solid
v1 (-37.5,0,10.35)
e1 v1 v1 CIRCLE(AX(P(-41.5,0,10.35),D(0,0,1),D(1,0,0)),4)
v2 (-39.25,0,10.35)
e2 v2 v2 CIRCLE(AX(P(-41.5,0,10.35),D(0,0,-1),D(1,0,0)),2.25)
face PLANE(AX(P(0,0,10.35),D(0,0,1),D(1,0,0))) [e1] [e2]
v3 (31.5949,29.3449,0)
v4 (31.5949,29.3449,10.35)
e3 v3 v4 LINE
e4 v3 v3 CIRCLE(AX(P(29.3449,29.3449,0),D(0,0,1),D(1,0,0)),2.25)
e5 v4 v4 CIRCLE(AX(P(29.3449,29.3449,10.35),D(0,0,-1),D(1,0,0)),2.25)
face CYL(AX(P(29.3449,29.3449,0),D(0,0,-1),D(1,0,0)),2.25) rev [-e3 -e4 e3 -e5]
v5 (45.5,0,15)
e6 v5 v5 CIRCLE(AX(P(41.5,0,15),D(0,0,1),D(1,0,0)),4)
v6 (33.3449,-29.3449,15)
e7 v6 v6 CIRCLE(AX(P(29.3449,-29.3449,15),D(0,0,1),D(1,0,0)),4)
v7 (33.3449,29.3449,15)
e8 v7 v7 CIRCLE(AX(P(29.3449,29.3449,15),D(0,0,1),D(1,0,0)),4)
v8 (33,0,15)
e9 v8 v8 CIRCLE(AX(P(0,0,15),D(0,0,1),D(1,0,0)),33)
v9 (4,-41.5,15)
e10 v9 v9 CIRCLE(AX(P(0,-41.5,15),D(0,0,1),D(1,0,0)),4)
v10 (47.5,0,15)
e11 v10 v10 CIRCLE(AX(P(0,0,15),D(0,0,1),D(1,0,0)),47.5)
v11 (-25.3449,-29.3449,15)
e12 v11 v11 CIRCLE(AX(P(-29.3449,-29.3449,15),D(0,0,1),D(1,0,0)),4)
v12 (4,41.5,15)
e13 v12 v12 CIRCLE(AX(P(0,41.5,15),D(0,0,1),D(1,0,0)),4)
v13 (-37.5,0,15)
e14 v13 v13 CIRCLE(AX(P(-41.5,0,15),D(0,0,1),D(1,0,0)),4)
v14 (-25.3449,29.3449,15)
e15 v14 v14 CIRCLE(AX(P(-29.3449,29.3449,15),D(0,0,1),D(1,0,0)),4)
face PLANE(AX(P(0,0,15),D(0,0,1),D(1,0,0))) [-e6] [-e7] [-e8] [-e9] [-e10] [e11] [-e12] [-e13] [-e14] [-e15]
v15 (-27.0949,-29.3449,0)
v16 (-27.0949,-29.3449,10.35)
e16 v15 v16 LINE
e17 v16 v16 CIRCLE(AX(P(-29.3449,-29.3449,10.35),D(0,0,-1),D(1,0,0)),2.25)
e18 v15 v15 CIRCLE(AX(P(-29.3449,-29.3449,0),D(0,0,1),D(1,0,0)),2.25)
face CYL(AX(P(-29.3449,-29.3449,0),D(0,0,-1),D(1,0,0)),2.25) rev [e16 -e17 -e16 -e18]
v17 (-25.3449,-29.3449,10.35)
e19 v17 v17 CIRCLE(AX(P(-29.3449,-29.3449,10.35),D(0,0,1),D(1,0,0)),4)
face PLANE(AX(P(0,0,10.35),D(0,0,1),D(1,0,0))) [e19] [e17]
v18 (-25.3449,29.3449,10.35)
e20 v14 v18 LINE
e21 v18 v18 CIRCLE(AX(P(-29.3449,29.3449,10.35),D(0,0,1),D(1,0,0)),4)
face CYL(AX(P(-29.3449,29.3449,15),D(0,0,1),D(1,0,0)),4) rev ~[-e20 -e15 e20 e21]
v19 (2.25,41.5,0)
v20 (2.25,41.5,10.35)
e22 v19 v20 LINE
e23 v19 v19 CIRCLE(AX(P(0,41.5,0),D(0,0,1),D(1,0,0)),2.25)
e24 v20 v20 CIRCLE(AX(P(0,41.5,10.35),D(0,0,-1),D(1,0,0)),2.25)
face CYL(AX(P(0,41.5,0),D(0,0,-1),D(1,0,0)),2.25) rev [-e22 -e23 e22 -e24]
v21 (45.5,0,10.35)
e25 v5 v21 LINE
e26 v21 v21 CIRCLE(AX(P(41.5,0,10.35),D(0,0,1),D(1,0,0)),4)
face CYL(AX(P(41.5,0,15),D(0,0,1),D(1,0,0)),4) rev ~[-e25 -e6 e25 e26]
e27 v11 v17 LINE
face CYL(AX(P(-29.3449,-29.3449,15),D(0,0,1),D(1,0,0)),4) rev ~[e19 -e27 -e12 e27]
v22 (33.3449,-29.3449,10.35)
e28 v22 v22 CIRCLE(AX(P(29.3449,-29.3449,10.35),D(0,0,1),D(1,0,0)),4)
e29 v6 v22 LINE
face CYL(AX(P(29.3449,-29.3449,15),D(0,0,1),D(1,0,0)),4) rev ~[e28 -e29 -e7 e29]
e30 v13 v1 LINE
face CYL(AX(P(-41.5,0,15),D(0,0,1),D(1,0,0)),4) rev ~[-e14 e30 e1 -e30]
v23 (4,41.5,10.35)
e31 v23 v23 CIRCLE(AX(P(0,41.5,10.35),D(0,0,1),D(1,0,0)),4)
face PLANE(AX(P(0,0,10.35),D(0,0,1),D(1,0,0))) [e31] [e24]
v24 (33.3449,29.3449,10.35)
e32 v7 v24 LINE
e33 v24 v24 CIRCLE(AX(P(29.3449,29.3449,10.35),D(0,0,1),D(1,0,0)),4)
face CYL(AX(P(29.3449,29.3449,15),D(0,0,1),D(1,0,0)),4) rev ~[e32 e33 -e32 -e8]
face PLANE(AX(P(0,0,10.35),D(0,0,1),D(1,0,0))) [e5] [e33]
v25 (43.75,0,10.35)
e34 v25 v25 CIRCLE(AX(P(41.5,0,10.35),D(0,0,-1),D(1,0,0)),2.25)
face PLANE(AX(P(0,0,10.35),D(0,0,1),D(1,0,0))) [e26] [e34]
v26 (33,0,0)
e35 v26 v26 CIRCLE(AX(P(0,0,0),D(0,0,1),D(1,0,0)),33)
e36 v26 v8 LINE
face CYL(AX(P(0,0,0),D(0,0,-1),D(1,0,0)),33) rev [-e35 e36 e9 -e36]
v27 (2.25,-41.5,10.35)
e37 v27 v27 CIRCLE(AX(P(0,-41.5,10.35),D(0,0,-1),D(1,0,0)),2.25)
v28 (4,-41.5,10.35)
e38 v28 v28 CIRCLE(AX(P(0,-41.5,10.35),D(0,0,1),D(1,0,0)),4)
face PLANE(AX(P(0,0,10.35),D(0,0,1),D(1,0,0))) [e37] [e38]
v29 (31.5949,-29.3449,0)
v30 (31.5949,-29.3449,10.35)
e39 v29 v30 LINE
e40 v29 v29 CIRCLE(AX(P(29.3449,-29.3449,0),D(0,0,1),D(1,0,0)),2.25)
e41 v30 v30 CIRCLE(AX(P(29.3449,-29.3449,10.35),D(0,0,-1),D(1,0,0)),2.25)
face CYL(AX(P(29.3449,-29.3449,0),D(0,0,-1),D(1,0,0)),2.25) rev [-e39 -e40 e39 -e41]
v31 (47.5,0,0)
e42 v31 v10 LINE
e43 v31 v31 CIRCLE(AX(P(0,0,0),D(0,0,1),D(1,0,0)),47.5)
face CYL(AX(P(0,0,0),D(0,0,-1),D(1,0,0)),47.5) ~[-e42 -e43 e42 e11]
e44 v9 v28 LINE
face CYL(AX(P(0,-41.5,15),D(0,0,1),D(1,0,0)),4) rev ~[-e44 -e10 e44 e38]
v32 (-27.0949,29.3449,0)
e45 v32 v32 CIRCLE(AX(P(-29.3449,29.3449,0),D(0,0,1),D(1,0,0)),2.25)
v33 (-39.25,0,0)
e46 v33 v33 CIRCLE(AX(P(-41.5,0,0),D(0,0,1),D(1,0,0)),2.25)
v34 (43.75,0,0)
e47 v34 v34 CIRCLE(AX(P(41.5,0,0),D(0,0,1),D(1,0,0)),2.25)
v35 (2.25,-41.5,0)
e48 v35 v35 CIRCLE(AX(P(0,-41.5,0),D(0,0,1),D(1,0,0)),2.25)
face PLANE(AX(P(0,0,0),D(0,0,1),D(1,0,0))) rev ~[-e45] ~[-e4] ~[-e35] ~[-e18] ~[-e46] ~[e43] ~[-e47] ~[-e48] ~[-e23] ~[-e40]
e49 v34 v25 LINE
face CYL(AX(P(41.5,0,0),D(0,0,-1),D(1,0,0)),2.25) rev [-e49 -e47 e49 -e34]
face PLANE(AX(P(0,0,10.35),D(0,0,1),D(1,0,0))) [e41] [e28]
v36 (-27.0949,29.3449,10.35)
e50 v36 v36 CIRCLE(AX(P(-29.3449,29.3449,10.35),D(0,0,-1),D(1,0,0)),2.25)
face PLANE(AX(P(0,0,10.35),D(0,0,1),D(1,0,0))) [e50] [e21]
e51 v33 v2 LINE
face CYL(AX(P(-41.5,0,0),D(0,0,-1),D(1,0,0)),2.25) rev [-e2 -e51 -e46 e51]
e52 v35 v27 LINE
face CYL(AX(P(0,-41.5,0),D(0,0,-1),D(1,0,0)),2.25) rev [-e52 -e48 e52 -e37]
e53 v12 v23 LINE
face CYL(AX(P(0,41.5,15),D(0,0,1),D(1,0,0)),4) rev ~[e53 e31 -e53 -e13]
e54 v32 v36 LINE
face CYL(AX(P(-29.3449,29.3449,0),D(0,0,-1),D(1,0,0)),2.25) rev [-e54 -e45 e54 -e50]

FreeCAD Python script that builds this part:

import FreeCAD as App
import Part
import Sketcher
from FreeCAD import Vector

doc = App.newDocument("Part")
body = doc.addObject("PartDesign::Body", "Body")

# Sketch on XY plane
sketch1 = body.newObject("Sketcher::SketchObject", "Sketch")
sketch1.AttachmentSupport = (doc.getObject("XY_Plane"), [""])
sketch1.MapMode = "FlatFace"
sketch1.addGeometry(Part.Circle(Vector(0, 0, 0), Vector(0, 0, 1), 47.5), False)
sketch1.addGeometry(Part.Circle(Vector(-29.3449, -29.3449, 0), Vector(0, 0, 1), 2.25), False)
sketch1.addGeometry(Part.Circle(Vector(0, -41.5, 0), Vector(0, 0, 1), 2.25), False)
sketch1.addGeometry(Part.Circle(Vector(29.3449, -29.3449, 0), Vector(0, 0, 1), 2.25), False)
sketch1.addGeometry(Part.Circle(Vector(-41.5, 0, 0), Vector(0, 0, 1), 2.25), False)
sketch1.addGeometry(Part.Circle(Vector(-29.3449, 29.3449, 0), Vector(0, 0, 1), 2.25), False)
sketch1.addGeometry(Part.Circle(Vector(0, 0, 0), Vector(0, 0, 1), 33), False)
sketch1.addGeometry(Part.Circle(Vector(41.5, 0, 0), Vector(0, 0, 1), 2.25), False)
sketch1.addGeometry(Part.Circle(Vector(0, 41.5, 0), Vector(0, 0, 1), 2.25), False)
sketch1.addGeometry(Part.Circle(Vector(29.3449, 29.3449, 0), Vector(0, 0, 1), 2.25), False)
sketch1.addConstraint(Sketcher.Constraint("Coincident", 0, 3, -1, 1))
sketch1.addConstraint(Sketcher.Constraint("Coincident", 6, 3, -1, 1))
sketch1.addConstraint(Sketcher.Constraint("Equal", 1, 2))
sketch1.addConstraint(Sketcher.Constraint("Equal", 2, 3))
sketch1.addConstraint(Sketcher.Constraint("Equal", 3, 4))
sketch1.addConstraint(Sketcher.Constraint("Equal", 4, 5))
sketch1.addConstraint(Sketcher.Constraint("Equal", 5, 7))
sketch1.addConstraint(Sketcher.Constraint("Equal", 7, 8))
sketch1.addConstraint(Sketcher.Constraint("Equal", 8, 9))
sketch1.addConstraint(Sketcher.Constraint("Symmetric", 3, 3, 5, 3, -1, 1))
sketch1.addConstraint(Sketcher.Constraint("Symmetric", 4, 3, 7, 3, -1, 1))
sketch1.addConstraint(Sketcher.Constraint("Symmetric", 2, 3, 8, 3, -1, 1))
sketch1.addConstraint(Sketcher.Constraint("Symmetric", 1, 3, 9, 3, -1, 1))
sketch1.addConstraint(Sketcher.Constraint("Symmetric", 1, 3, 3, 3, -2))
sketch1.addConstraint(Sketcher.Constraint("PointOnObject", 2, 3, -2))
sketch1.addConstraint(Sketcher.Constraint("PointOnObject", 4, 3, -1))
sketch1.addConstraint(Sketcher.Constraint("Diameter", 0, 95.0))
sketch1.addConstraint(Sketcher.Constraint("Diameter", 6, 66.0))
sketch1.addConstraint(Sketcher.Constraint("Diameter", 1, 4.5))
sketch1.addConstraint(Sketcher.Constraint("DistanceY", 2, 3, -1, 1, 41.5))
sketch1.addConstraint(Sketcher.Constraint("DistanceX", 4, 3, -1, 1, 41.5))
sketch1.addConstraint(Sketcher.Constraint("DistanceX", 1, 3, -1, 1, 29.345))
sketch1.addConstraint(Sketcher.Constraint("DistanceY", 1, 3, -1, 1, 29.345))
pad1 = body.newObject("PartDesign::Pad", "Pad")
pad1.Profile = sketch1
pad1.Length = 15

# Sketch on XY plane
sketch2 = body.newObject("Sketcher::SketchObject", "Sketch001")
sketch2.AttachmentSupport = (doc.getObject("XY_Plane"), [""])
sketch2.MapMode = "FlatFace"
sketch2.AttachmentOffset = App.Placement(Vector(0, 0, 15), App.Rotation())
sketch2.addGeometry(Part.Circle(Vector(41.5, 0, 0), Vector(0, 0, 1), 4), False)
sketch2.addGeometry(Part.Circle(Vector(29.3449, 29.3449, 0), Vector(0, 0, 1), 4), False)
sketch2.addGeometry(Part.Circle(Vector(0, 41.5, 0), Vector(0, 0, 1), 4), False)
sketch2.addGeometry(Part.Circle(Vector(-29.3449, 29.3449, 0), Vector(0, 0, 1), 4), False)
sketch2.addGeometry(Part.Circle(Vector(-41.5, 0, 0), Vector(0, 0, 1), 4), False)
sketch2.addGeometry(Part.Circle(Vector(-29.3449, -29.3449, 0), Vector(0, 0, 1), 4), False)
sketch2.addGeometry(Part.Circle(Vector(0, -41.5, 0), Vector(0, 0, 1), 4), False)
sketch2.addGeometry(Part.Circle(Vector(29.3449, -29.3449, 0), Vector(0, 0, 1), 4), False)
sketch2.addConstraint(Sketcher.Constraint("Equal", 0, 1))
sketch2.addConstraint(Sketcher.Constraint("Equal", 1, 2))
sketch2.addConstraint(Sketcher.Constraint("Equal", 2, 3))
sketch2.addConstraint(Sketcher.Constraint("Equal", 3, 4))
sketch2.addConstraint(Sketcher.Constraint("Equal", 4, 5))
sketch2.addConstraint(Sketcher.Constraint("Equal", 5, 6))
sketch2.addConstraint(Sketcher.Constraint("Equal", 6, 7))
sketch2.addConstraint(Sketcher.Constraint("Symmetric", 0, 3, 4, 3, -1, 1))
sketch2.addConstraint(Sketcher.Constraint("Symmetric", 1, 3, 5, 3, -1, 1))
sketch2.addConstraint(Sketcher.Constraint("Symmetric", 2, 3, 6, 3, -1, 1))
sketch2.addConstraint(Sketcher.Constraint("Symmetric", 3, 3, 7, 3, -1, 1))
sketch2.addConstraint(Sketcher.Constraint("Symmetric", 1, 3, 3, 3, -2))
sketch2.addConstraint(Sketcher.Constraint("PointOnObject", 0, 3, -1))
sketch2.addConstraint(Sketcher.Constraint("PointOnObject", 2, 3, -2))
sketch2.addConstraint(Sketcher.Constraint("Diameter", 0, 8.0))
sketch2.addConstraint(Sketcher.Constraint("DistanceX", 4, 3, 0, 3, 83.0))
sketch2.addConstraint(Sketcher.Constraint("DistanceY", -1, 1, 2, 3, 41.5))
sketch2.addConstraint(Sketcher.Constraint("DistanceX", -1, 1, 1, 3, 29.345))
sketch2.addConstraint(Sketcher.Constraint("DistanceY", -1, 1, 1, 3, 29.345))
pocket1 = body.newObject("PartDesign::Pocket", "Pocket")
pocket1.Profile = sketch2
pocket1.Length = 4.65

doc.recompute()
